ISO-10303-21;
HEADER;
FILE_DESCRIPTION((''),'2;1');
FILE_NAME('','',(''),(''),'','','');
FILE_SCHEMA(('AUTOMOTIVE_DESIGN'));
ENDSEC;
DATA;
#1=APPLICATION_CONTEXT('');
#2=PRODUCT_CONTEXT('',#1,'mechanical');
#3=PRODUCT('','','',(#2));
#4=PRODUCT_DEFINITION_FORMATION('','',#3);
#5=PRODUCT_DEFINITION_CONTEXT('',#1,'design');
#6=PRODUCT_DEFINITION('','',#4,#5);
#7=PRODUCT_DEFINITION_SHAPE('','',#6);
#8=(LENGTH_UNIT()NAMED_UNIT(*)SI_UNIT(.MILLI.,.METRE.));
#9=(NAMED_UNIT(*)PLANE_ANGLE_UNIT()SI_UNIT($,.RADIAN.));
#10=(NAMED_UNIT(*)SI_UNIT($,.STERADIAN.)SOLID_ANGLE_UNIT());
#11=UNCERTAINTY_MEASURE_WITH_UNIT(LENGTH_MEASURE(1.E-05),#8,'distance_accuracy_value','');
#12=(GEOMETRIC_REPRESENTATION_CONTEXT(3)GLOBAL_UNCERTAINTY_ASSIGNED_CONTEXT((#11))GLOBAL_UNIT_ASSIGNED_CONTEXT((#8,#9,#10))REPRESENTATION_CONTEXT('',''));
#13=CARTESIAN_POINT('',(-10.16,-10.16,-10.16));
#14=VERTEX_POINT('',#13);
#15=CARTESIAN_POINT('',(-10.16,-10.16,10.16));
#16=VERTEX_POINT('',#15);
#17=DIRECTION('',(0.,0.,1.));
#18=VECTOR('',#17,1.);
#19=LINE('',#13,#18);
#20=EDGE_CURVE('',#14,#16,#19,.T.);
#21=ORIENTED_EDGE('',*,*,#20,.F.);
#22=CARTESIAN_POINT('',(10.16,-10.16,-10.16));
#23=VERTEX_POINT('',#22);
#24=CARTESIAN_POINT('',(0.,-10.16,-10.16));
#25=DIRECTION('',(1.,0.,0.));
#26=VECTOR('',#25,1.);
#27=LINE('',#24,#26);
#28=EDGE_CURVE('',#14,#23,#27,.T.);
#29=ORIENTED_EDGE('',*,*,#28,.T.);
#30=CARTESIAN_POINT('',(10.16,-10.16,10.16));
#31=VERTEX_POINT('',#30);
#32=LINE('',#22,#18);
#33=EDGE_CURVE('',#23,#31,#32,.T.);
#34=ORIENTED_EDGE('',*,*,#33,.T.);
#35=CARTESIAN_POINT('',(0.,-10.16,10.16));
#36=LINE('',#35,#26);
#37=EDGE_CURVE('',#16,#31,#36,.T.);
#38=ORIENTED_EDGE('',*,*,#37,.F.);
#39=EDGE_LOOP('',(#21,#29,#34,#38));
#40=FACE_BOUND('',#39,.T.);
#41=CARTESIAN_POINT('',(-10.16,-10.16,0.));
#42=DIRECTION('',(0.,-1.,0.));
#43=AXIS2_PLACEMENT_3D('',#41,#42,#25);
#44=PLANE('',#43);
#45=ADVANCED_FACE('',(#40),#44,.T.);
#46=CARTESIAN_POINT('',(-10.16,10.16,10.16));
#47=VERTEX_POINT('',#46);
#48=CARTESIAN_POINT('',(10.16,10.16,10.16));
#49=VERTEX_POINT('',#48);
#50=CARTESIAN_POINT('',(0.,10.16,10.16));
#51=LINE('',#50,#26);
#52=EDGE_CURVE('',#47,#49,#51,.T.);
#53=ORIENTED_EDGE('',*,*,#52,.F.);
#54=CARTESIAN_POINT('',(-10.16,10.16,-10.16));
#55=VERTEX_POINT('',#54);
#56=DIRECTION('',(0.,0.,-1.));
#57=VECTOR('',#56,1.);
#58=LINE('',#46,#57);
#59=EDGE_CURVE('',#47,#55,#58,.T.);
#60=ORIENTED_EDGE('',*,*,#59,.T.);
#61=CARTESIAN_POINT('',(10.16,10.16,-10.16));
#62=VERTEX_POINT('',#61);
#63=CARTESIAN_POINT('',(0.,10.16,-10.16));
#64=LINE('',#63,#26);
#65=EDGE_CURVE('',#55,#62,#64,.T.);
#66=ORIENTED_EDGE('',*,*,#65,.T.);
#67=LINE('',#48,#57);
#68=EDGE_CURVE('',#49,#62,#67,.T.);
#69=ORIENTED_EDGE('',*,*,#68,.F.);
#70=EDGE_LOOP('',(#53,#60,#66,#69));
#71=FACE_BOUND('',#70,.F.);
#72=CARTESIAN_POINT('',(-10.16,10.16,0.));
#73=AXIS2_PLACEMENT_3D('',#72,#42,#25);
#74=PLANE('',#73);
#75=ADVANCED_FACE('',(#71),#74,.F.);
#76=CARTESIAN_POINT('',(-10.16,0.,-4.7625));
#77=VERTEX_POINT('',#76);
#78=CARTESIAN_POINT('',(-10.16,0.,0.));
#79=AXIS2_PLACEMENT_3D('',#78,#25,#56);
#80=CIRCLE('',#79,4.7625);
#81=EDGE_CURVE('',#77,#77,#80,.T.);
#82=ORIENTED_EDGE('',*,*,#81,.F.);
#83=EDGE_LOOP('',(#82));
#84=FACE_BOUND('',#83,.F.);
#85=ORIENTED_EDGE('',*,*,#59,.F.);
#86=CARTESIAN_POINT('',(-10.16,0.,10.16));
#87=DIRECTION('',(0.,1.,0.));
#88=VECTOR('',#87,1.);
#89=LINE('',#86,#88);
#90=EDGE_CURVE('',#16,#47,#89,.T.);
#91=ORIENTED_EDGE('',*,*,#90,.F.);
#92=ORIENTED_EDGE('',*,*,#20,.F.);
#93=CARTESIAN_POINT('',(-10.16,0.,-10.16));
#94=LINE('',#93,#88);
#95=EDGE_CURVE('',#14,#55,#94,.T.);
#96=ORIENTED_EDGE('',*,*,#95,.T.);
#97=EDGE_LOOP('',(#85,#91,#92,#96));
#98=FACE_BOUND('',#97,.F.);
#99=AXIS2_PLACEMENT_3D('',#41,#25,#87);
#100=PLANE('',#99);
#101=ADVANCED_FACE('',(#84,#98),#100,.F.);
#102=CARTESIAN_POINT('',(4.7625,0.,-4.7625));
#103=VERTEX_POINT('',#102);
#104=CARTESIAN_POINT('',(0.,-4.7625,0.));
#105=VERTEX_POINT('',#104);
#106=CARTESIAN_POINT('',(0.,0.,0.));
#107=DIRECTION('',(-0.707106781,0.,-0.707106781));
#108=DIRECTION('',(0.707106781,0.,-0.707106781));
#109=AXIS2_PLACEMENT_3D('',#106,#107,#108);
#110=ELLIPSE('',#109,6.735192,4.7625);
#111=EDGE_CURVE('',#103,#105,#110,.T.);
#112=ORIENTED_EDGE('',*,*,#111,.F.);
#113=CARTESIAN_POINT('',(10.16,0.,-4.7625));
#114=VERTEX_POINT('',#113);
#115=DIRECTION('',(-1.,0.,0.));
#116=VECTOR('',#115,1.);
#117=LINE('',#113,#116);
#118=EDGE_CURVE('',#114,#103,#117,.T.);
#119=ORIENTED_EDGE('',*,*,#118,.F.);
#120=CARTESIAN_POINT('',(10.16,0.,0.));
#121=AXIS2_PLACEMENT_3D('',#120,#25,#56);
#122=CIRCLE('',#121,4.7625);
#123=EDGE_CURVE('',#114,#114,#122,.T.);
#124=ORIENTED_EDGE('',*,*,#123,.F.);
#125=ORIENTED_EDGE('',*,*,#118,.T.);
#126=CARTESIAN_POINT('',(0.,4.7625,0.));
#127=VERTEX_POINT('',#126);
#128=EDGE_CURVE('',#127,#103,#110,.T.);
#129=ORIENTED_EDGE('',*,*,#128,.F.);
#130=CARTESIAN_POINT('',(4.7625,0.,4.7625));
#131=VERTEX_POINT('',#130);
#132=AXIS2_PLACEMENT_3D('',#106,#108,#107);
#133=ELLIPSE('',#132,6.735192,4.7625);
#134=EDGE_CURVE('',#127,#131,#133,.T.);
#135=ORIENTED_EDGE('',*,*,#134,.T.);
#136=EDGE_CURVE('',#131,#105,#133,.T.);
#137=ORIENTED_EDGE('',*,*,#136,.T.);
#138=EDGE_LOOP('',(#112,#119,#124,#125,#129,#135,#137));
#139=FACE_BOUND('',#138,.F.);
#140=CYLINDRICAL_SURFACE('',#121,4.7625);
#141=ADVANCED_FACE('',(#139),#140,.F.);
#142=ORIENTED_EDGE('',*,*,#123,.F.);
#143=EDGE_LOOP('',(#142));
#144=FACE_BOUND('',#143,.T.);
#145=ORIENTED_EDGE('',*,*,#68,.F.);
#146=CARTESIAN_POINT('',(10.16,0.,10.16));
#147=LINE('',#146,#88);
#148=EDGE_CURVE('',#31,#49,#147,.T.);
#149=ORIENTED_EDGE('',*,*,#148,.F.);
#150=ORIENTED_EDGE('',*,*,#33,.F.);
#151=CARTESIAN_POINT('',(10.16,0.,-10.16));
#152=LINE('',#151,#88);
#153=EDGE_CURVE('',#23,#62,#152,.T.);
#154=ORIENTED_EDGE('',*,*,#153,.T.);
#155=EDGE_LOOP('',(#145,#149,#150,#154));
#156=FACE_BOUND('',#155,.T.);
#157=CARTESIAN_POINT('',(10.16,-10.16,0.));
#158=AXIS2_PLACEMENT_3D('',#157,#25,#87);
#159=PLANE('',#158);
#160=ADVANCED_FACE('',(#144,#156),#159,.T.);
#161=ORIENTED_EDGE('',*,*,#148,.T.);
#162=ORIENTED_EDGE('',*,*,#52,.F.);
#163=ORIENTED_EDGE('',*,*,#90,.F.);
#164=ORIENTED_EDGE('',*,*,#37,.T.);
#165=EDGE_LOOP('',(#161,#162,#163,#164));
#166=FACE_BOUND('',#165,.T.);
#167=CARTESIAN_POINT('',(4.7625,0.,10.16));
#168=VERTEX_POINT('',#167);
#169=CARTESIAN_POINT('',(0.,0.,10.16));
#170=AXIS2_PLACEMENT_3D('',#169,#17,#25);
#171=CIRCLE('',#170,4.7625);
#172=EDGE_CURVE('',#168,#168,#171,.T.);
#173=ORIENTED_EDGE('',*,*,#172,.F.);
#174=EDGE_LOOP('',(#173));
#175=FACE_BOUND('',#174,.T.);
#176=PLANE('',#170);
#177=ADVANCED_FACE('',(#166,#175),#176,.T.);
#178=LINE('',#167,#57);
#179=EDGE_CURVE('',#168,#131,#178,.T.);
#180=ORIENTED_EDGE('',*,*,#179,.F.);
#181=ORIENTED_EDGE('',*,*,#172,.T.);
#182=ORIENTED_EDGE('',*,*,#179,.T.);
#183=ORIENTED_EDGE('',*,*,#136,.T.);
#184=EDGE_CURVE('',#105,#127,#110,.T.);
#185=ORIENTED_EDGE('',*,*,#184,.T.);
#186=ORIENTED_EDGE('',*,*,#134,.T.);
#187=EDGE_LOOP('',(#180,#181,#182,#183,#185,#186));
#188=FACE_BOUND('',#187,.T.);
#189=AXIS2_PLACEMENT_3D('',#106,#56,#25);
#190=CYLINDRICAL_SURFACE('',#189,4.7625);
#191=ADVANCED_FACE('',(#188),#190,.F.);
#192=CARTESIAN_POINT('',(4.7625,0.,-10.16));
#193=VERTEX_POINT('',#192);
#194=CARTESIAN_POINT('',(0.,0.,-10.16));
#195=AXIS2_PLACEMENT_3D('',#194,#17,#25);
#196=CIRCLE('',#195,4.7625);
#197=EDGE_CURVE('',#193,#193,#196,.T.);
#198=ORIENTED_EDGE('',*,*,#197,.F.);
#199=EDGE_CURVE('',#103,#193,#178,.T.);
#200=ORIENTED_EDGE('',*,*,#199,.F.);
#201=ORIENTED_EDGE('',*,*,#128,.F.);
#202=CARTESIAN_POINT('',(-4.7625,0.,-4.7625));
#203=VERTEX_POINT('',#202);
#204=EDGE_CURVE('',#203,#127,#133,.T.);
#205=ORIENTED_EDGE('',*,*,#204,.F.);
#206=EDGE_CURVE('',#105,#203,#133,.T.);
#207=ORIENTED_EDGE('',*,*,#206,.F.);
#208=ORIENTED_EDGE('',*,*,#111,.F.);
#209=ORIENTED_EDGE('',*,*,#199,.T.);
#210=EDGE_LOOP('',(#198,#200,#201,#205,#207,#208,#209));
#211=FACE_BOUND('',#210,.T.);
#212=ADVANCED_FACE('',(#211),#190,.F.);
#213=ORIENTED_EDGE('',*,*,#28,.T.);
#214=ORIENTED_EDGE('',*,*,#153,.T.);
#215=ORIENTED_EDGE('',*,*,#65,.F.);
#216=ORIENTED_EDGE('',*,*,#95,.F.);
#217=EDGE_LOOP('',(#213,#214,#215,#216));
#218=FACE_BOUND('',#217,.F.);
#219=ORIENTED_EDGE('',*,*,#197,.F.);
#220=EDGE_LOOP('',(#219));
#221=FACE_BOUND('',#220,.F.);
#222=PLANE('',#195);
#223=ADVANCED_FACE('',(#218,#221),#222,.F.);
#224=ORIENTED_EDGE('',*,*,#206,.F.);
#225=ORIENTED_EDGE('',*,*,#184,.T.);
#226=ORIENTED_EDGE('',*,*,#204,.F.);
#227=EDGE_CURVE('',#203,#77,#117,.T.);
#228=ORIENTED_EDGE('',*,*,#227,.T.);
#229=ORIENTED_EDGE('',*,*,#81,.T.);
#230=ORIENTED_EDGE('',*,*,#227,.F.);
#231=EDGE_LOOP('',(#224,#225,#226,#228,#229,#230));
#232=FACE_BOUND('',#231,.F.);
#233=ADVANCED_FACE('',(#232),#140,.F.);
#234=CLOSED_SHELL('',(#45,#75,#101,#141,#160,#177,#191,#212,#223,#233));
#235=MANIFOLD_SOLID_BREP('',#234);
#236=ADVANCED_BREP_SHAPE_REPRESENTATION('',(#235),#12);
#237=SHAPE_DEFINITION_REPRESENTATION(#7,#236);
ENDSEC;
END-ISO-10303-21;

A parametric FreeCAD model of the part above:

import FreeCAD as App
import Part
import Sketcher
from FreeCAD import Vector
Q = App.Units.Quantity

doc = App.newDocument("Part")
params = doc.addObject("Spreadsheet::Sheet", "Params")
for row, (alias, value) in enumerate([
    ("sketch1_diameter", "0.375 in"),
    ("sketch1_width", "0.8 in"),
    ("pad1_length", "0.8 in"),
    ("sketch2_diameter", "0.375 in"),
], start=1):
    params.set(f"A{row}", alias)
    params.set(f"B{row}", "=" + value)
    params.setAlias(f"B{row}", alias)

body = doc.addObject("PartDesign::Body", "Body")

sketch1 = body.newObject("Sketcher::SketchObject", "Sketch")
sketch1.AttachmentSupport = (doc.getObject("XY_Plane"), [""])
sketch1.MapMode = "FlatFace"
sketch1.addGeometry(Part.LineSegment(Vector(-10.16, 10.16, 0), Vector(-10.16, -10.16, 0)), False)
sketch1.addGeometry(Part.LineSegment(Vector(-10.16, -10.16, 0), Vector(10.16, -10.16, 0)), False)
sketch1.addGeometry(Part.LineSegment(Vector(10.16, -10.16, 0), Vector(10.16, 10.16, 0)), False)
sketch1.addGeometry(Part.LineSegment(Vector(10.16, 10.16, 0), Vector(-10.16, 10.16, 0)), False)
sketch1.addGeometry(Part.Circle(Vector(0, 0, 0), Vector(0, 0, 1), 4.7625), False)
sketch1.addConstraint(Sketcher.Constraint("Coincident", 0, 2, 1, 1))
sketch1.addConstraint(Sketcher.Constraint("Coincident", 1, 2, 2, 1))
sketch1.addConstraint(Sketcher.Constraint("Coincident", 2, 2, 3, 1))
sketch1.addConstraint(Sketcher.Constraint("Coincident", 3, 2, 0, 1))
sketch1.addConstraint(Sketcher.Constraint("Vertical", 0))
sketch1.addConstraint(Sketcher.Constraint("Horizontal", 1))
sketch1.addConstraint(Sketcher.Constraint("Vertical", 2))
sketch1.addConstraint(Sketcher.Constraint("Horizontal", 3))
sketch1.addConstraint(Sketcher.Constraint("Coincident", 4, 3, -1, 1))
sketch1.addConstraint(Sketcher.Constraint("Symmetric", 0, 2, 2, 2, -1, 1))
sketch1.addConstraint(Sketcher.Constraint("Equal", 3, 0))
sketch1.addConstraint(Sketcher.Constraint("Diameter", 4, Q("0.375 in")))
sketch1.addConstraint(Sketcher.Constraint("DistanceX", 1, 1, 1, 2, Q("0.8 in")))
sketch1.setExpression("Constraints[11]", "Params.sketch1_diameter")
sketch1.setExpression("Constraints[12]", "Params.sketch1_width")
pad1 = body.newObject("PartDesign::Pad", "Pad")
pad1.Profile = sketch1
pad1.setExpression("Length", "Params.pad1_length")
pad1.Midplane = True

sketch2 = body.newObject("Sketcher::SketchObject", "Sketch001")
sketch2.AttachmentSupport = (doc.getObject("YZ_Plane"), [""])
sketch2.MapMode = "FlatFace"
sketch2.AttachmentOffset = App.Placement(Vector(0, 0, 0.4 * 25.4), App.Rotation())
sketch2.addGeometry(Part.Circle(Vector(0, 0, 0), Vector(0, 0, 1), 4.7625), False)
sketch2.addConstraint(Sketcher.Constraint("Coincident", 0, 3, -1, 1))
sketch2.addConstraint(Sketcher.Constraint("Diameter", 0, Q("0.375 in")))
sketch2.setExpression("Constraints[1]", "Params.sketch2_diameter")
pocket1 = body.newObject("PartDesign::Pocket", "Pocket")
pocket1.Profile = sketch2
pocket1.Type = "ThroughAll"

doc.recompute()
